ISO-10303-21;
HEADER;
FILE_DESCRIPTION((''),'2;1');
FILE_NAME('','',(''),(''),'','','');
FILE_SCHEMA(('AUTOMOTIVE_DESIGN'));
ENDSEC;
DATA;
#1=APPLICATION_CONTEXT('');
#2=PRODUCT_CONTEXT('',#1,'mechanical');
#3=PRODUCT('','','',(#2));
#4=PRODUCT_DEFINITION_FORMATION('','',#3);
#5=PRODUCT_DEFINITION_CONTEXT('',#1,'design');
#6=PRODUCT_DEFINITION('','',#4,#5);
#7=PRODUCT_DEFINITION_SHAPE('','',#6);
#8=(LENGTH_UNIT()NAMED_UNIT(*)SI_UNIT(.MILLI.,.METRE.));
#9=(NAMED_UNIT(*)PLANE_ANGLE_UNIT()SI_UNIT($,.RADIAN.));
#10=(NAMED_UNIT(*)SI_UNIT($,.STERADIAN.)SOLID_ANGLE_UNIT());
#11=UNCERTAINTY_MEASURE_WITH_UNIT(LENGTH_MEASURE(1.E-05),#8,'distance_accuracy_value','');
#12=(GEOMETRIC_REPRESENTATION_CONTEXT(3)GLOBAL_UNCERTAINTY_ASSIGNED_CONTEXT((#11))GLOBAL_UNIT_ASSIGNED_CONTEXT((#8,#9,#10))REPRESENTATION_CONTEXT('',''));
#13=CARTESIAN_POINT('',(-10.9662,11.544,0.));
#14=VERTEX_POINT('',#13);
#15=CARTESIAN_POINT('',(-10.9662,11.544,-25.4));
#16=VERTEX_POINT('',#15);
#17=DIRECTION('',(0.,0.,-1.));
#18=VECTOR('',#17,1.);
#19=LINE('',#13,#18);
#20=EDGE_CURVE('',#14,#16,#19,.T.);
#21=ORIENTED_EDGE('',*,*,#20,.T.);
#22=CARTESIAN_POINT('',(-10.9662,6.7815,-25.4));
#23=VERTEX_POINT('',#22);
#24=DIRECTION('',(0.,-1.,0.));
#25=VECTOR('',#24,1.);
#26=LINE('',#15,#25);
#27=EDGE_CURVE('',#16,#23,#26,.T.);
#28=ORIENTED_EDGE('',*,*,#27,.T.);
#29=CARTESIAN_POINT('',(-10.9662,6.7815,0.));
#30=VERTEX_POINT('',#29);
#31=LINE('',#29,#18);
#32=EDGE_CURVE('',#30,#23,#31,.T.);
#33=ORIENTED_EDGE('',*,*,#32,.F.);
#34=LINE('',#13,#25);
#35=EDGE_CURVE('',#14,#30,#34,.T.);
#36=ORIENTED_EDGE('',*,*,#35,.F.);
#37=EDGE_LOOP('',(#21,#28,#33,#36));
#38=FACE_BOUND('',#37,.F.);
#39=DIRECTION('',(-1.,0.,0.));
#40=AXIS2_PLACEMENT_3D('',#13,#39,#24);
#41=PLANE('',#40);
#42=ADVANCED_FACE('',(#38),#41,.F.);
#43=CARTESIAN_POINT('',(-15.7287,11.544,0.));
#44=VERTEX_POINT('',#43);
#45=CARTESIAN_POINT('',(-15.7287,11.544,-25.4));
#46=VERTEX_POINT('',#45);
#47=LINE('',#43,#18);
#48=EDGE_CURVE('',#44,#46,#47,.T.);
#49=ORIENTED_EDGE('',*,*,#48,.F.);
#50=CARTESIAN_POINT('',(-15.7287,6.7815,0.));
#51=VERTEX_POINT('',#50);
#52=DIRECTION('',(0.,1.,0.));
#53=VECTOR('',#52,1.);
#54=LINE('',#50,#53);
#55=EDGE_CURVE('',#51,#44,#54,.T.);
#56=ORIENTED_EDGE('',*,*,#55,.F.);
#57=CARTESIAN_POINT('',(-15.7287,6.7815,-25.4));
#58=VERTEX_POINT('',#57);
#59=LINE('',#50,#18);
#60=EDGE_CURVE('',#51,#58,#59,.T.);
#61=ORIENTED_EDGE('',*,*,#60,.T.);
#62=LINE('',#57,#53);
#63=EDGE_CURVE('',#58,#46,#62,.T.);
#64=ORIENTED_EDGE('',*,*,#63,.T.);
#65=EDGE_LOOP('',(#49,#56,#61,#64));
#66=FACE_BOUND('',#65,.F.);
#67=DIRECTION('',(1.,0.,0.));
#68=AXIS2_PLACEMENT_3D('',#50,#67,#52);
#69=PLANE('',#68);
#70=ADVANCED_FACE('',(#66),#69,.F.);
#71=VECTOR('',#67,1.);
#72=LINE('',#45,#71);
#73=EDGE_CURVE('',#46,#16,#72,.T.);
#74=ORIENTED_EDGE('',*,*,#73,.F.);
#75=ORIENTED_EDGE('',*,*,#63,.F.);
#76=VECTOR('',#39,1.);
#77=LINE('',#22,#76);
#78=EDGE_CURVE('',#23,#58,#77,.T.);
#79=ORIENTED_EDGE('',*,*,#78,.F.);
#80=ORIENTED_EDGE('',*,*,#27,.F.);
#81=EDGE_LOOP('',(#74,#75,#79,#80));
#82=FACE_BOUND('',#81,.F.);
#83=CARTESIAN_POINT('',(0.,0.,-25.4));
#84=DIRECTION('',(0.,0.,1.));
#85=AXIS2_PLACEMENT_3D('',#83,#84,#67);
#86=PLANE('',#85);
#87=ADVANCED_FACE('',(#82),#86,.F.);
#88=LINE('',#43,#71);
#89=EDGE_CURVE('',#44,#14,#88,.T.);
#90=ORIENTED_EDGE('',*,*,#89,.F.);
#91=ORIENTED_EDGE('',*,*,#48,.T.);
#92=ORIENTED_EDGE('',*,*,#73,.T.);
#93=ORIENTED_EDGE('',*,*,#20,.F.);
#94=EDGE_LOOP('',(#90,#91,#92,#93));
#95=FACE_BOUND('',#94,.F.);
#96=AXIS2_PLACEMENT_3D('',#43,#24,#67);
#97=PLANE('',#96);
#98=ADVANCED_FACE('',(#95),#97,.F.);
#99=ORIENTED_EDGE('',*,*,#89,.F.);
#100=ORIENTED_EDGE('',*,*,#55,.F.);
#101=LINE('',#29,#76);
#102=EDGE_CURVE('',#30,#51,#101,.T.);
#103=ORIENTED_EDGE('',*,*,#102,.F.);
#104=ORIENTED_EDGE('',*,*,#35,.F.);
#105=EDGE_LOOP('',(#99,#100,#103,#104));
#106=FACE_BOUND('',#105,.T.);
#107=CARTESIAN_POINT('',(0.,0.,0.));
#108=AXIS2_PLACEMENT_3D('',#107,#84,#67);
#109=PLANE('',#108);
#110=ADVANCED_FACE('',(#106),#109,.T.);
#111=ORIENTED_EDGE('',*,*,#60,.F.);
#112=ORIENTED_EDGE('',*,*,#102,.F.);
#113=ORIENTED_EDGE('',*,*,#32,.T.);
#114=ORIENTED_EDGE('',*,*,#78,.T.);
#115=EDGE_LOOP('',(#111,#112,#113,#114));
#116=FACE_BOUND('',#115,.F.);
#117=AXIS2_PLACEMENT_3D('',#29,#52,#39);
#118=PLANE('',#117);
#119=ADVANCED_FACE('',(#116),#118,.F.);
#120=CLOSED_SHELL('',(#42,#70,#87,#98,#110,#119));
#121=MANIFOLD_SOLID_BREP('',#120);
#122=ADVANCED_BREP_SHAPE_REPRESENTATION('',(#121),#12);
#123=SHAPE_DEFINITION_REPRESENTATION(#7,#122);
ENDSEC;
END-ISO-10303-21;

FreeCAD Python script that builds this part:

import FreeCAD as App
import Part
import Sketcher
Q = App.Units.Quantity

doc = App.newDocument("Part")
body = doc.addObject("PartDesign::Body", "Body")

# Sketch on XY plane
sketch1 = body.newObject("Sketcher::SketchObject", "Sketch")
sketch1.AttachmentSupport = (doc.getObject("XY_Plane"), [""])
sketch1.MapMode = "FlatFace"
sketch1.addGeometry([
    Part.LineSegment(App.Vector(-11, 11.5, 0), App.Vector(-15.7, 11.5, 0)),
    Part.LineSegment(App.Vector(-15.7, 11.5, 0), App.Vector(-15.7, 6.8, 0)),
    Part.LineSegment(App.Vector(-15.7, 6.8, 0), App.Vector(-11, 6.8, 0)),
    Part.LineSegment(App.Vector(-11, 6.8, 0), App.Vector(-11, 11.5, 0)),
], False)
sketch1.addConstraint([
    Sketcher.Constraint("Coincident", 0, 2, 1, 1),
    Sketcher.Constraint("Coincident", 1, 2, 2, 1),
    Sketcher.Constraint("Coincident", 2, 2, 3, 1),
    Sketcher.Constraint("Coincident", 3, 2, 0, 1),
    Sketcher.Constraint("Horizontal", 0),
    Sketcher.Constraint("Vertical", 1),
    Sketcher.Constraint("Horizontal", 2),
    Sketcher.Constraint("Vertical", 3),
    Sketcher.Constraint("Equal", 2, 1),
    Sketcher.Constraint("DistanceX", 0, 2, 0, 1, Q("0.1875 in")),
    Sketcher.Constraint("DistanceY", -1, 1, 1, 2, Q("0.267 in")),
    Sketcher.Constraint("DistanceX", 0, 2, -1, 1, 15.7287),
])
pad1 = body.newObject("PartDesign::Pad", "Pad")
pad1.Profile = sketch1
pad1.Length = Q("1 in")
pad1.Reversed = True

doc.recompute()
